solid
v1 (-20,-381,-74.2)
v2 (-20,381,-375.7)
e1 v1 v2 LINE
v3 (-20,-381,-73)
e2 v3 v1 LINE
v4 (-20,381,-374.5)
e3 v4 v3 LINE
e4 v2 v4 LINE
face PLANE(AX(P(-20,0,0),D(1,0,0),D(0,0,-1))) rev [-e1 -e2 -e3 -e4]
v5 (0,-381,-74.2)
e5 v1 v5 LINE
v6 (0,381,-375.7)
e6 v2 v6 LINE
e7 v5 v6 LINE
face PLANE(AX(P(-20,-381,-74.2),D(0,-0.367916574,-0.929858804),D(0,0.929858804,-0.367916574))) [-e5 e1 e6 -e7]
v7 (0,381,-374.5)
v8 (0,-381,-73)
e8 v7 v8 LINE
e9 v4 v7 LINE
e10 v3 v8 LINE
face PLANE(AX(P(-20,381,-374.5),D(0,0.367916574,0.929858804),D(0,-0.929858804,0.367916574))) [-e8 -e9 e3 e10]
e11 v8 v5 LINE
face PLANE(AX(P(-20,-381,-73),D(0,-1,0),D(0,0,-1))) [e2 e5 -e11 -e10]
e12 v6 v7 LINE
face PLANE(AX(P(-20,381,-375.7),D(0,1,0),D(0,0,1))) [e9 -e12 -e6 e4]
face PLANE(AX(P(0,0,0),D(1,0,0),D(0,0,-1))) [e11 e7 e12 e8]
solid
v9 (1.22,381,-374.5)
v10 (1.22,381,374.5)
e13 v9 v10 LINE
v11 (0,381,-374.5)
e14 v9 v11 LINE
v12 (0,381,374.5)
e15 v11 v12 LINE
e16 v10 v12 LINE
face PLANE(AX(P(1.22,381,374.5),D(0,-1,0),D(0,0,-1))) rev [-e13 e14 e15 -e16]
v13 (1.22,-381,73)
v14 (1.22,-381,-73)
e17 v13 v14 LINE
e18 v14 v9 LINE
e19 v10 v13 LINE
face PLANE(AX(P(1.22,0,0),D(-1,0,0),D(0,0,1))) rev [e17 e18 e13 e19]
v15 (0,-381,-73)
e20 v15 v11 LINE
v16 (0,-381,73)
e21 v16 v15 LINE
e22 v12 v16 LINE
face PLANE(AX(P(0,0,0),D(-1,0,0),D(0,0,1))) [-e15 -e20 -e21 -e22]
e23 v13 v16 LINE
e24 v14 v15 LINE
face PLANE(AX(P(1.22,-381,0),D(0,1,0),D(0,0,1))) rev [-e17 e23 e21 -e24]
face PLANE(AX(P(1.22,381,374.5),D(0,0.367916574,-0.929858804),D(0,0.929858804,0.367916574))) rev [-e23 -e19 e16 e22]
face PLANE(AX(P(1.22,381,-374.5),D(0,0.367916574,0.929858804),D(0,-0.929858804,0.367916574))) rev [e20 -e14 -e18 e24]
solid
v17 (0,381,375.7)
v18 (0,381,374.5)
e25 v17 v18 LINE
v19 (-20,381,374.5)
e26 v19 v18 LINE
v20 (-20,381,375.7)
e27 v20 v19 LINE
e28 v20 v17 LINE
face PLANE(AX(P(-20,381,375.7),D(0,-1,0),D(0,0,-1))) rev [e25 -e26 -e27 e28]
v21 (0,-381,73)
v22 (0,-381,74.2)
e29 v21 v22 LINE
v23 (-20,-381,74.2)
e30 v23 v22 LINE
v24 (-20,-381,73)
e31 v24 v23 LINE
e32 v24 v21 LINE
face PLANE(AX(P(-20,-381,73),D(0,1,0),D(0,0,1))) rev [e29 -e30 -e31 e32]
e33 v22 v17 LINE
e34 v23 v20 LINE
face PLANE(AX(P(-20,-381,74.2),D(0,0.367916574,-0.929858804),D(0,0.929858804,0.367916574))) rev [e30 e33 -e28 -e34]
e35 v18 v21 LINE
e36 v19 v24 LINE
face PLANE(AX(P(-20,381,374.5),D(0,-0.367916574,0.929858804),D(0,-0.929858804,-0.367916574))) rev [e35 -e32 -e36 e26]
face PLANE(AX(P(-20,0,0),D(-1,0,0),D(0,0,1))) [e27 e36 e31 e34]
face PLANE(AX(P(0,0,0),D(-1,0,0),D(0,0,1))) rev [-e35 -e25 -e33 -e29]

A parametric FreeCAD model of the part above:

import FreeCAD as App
import Part
import Sketcher


def add_polygon(sketch, points):
    """Adds a closed chain of lines whose ends are joined by coincident constraints."""
    first, n = sketch.GeometryCount, len(points)
    for a, b in zip(points, points[1:] + points[:1]):
        sketch.addGeometry(Part.LineSegment(App.Vector(*a, 0), App.Vector(*b, 0)), False)
    for i in range(n):
        sketch.addConstraint(Sketcher.Constraint("Coincident", first + i, 2, first + (i + 1) % n, 1))

doc = App.newDocument("Part")
body = doc.addObject("PartDesign::Body", "Body")

# Sketch on YZ plane
sketch1 = body.newObject("Sketcher::SketchObject", "Sketch")
sketch1.AttachmentSupport = (doc.getObject("YZ_Plane"), [""])
sketch1.MapMode = "FlatFace"
add_polygon(sketch1, [(381, -374), (381, 374), (-381, 73), (-381, -73)])  # lines 0-3
sketch1.addConstraint([
    Sketcher.Constraint("Vertical", 0),
    Sketcher.Constraint("Vertical", 2),
    Sketcher.Constraint("Equal", 1, 3),
    Sketcher.Constraint("DistanceY", 0, 1, 0, 2, 749.0),
    Sketcher.Constraint("DistanceY", 2, 2, 2, 1, 146.0),
    Sketcher.Constraint("DistanceX", -1, 1, 0, 2, 381.0),
    Sketcher.Constraint("DistanceX", 1, 2, -1, 1, 381.0),
    Sketcher.Constraint("DistanceY", -1, 1, 1, 2, 73.0),
])
pad1 = body.newObject("PartDesign::Pad", "Pad")
pad1.Profile = sketch1
pad1.Length = 1.22
body2 = doc.addObject("PartDesign::Body", "Body001")

# Sketch on YZ plane
sketch2 = body2.newObject("Sketcher::SketchObject", "Sketch001")
sketch2.AttachmentSupport = (doc.getObject("YZ_Plane001"), [""])
sketch2.MapMode = "FlatFace"
add_polygon(sketch2, [(-381, 73), (-381, 74.2), (381, 375.7), (381, 374.5)])  # lines 0-3
sketch2.addConstraint([
    Sketcher.Constraint("Vertical", 0),
    Sketcher.Constraint("Vertical", 2),
    Sketcher.Constraint("Parallel", 1, 3),
    Sketcher.Constraint("DistanceY", 0, 1, 0, 2, 1.2),
    Sketcher.Constraint("DistanceX", 0, 2, -1, 1, 381.0),
    Sketcher.Constraint("DistanceX", -1, 1, 1, 2, 381.0),
    Sketcher.Constraint("DistanceY", -1, 1, 3, 2, 73.0),
    Sketcher.Constraint("DistanceY", -1, 1, 1, 2, 375.7),
])
pad2 = body2.newObject("PartDesign::Pad", "Pad001")
pad2.Profile = sketch2
pad2.Length = 20
pad2.Reversed = True
body3 = doc.addObject("PartDesign::Body", "Body002")

# Sketch on YZ plane
sketch3 = body3.newObject("Sketcher::SketchObject", "Sketch002")
sketch3.AttachmentSupport = (doc.getObject("YZ_Plane002"), [""])
sketch3.MapMode = "FlatFace"
add_polygon(sketch3, [(-381, -74.2), (-381, -73), (381, -374.5), (381, -375.7)])  # lines 0-3
sketch3.addConstraint([
    Sketcher.Constraint("Vertical", 0),
    Sketcher.Constraint("Vertical", 2),
    Sketcher.Constraint("Parallel", 1, 3),
    Sketcher.Constraint("DistanceY", 0, 1, 0, 2, 1.2),
    Sketcher.Constraint("DistanceX", 0, 2, -1, 1, 381.0),
    Sketcher.Constraint("DistanceY", 0, 2, -1, 1, 73.0),
    Sketcher.Constraint("DistanceX", -1, 1, 1, 2, 381.0),
    Sketcher.Constraint("DistanceY", 1, 2, -1, 1, 374.5),
])
pad3 = body3.newObject("PartDesign::Pad", "Pad002")
pad3.Profile = sketch3
pad3.Length = 20
pad3.Reversed = True

doc.recompute()
